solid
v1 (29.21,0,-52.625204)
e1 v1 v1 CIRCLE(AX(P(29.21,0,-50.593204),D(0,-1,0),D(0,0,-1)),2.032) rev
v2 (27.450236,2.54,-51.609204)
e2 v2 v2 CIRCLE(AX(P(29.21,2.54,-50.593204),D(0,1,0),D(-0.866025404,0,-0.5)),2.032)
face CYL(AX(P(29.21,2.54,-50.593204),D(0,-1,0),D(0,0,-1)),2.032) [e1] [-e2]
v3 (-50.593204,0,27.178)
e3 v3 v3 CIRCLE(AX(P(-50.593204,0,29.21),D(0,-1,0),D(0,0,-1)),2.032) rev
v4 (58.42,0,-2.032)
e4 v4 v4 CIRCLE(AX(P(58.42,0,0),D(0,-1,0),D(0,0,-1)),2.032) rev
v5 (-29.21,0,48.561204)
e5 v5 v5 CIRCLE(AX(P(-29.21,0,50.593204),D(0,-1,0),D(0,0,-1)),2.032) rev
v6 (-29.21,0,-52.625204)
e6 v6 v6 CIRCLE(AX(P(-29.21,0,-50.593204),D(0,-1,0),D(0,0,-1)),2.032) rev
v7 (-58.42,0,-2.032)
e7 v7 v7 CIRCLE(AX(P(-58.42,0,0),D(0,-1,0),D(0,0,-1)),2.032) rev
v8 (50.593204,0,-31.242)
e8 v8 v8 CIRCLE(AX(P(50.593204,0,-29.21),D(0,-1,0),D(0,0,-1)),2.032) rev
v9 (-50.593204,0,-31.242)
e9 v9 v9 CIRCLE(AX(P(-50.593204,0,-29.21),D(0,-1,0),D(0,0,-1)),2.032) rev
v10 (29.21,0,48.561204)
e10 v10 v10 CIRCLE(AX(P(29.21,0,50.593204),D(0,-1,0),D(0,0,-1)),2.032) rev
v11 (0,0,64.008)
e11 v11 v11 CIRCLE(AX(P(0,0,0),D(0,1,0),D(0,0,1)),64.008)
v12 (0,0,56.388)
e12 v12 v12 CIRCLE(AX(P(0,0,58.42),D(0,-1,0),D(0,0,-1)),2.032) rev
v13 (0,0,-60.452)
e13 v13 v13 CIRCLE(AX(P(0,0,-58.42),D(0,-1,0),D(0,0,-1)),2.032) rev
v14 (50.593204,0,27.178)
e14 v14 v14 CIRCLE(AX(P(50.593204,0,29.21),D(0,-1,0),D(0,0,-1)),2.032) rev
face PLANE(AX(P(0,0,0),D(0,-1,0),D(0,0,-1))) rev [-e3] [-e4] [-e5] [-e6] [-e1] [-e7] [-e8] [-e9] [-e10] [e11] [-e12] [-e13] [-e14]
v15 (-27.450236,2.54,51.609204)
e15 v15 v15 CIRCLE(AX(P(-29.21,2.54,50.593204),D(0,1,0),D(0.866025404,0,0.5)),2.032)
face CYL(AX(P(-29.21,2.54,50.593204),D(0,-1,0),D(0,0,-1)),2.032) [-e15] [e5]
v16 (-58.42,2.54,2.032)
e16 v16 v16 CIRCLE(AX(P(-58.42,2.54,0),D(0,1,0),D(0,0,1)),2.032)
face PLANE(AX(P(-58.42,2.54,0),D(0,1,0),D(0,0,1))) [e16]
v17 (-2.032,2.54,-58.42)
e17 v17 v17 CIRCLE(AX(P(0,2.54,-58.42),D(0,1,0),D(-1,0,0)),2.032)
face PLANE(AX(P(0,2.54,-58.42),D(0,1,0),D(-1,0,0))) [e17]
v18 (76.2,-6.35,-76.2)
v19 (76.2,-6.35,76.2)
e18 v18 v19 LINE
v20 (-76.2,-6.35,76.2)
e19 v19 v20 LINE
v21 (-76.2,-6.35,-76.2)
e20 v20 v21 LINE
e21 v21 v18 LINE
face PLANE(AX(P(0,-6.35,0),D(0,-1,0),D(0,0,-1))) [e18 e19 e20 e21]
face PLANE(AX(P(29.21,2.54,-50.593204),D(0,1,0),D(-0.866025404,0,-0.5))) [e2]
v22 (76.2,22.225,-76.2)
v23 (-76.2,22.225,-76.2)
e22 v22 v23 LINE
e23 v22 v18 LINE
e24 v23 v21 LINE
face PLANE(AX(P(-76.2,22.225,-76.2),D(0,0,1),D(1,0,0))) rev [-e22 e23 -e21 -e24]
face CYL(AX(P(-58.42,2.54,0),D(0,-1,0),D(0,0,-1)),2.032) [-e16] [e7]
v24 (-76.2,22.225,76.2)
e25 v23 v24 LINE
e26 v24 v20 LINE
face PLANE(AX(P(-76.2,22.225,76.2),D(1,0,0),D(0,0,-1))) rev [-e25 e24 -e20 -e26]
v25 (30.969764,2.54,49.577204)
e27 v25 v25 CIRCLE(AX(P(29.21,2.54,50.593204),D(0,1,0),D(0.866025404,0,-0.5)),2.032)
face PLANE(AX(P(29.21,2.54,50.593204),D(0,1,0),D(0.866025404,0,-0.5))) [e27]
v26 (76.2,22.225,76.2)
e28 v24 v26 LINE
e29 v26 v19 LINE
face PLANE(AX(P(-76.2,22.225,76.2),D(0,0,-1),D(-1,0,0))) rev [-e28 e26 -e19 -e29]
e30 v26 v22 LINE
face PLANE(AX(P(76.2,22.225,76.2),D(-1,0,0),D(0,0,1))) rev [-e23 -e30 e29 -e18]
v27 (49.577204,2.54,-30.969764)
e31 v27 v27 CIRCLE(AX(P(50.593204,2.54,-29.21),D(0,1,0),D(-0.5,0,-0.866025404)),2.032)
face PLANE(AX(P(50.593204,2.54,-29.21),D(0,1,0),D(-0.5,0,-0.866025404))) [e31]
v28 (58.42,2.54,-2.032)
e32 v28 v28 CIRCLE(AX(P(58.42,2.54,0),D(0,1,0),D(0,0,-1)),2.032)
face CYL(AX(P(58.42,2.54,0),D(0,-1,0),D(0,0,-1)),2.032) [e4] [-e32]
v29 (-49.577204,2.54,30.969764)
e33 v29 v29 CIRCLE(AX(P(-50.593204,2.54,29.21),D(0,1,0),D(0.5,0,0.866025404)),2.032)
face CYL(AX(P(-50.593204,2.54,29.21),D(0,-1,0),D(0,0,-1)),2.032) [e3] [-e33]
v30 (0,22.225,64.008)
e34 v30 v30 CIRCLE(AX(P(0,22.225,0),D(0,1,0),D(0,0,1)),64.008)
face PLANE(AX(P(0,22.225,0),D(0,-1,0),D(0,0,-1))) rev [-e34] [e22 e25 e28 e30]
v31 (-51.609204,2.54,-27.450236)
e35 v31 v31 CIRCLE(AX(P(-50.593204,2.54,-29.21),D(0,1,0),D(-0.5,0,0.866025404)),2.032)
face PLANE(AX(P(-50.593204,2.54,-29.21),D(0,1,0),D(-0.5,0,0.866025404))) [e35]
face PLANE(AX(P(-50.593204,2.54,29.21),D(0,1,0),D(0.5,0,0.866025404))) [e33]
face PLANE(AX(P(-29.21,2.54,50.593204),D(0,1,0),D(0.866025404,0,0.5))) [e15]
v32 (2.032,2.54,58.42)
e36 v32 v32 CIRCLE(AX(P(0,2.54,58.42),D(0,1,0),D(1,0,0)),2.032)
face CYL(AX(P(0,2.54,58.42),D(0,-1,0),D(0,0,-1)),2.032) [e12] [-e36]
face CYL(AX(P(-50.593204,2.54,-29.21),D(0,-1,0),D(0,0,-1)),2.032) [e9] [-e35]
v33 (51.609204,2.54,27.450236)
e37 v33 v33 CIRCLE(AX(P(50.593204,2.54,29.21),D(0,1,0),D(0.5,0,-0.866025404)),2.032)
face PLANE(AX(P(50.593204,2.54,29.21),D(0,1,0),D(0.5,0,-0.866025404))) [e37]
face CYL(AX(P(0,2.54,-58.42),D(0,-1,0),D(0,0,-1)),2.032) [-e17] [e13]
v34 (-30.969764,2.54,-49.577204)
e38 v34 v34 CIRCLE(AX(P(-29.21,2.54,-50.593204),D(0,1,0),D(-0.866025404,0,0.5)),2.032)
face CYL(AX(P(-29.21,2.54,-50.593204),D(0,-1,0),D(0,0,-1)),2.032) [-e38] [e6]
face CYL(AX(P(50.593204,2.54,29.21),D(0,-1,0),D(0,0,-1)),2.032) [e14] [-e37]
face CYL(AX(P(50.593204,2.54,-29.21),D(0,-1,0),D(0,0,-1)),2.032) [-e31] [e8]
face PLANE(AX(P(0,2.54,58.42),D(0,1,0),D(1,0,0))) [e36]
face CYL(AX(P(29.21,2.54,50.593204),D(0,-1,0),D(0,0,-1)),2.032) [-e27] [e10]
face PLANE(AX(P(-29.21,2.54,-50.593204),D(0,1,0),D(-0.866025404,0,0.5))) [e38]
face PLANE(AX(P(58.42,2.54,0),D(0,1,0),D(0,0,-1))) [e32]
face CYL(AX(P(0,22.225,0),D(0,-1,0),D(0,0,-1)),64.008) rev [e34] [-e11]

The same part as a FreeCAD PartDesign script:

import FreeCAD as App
import Part
import Sketcher
Q = App.Units.Quantity


def add_polygon(sketch, points):
    """Adds a closed chain of lines whose ends are joined by coincident constraints."""
    first, n = sketch.GeometryCount, len(points)
    for a, b in zip(points, points[1:] + points[:1]):
        sketch.addGeometry(Part.LineSegment(App.Vector(*a, 0), App.Vector(*b, 0)), False)
    for i in range(n):
        sketch.addConstraint(Sketcher.Constraint("Coincident", first + i, 2, first + (i + 1) % n, 1))

doc = App.newDocument("Part")
body = doc.addObject("PartDesign::Body", "Body")

sketch1 = body.newObject("Sketcher::SketchObject", "Sketch")
sketch1.AttachmentSupport = (doc.getObject("XZ_Plane"), [""])
sketch1.MapMode = "FlatFace"
add_polygon(sketch1, [(-76, -76), (-76, 76), (76, 76), (76, -76)])
sketch1.addGeometry(Part.Circle(App.Vector(0, 0, 0), App.Vector(0, 0, 1), 64), False)
sketch1.addConstraint([
    Sketcher.Constraint("Vertical", 0),
    Sketcher.Constraint("Horizontal", 1),
    Sketcher.Constraint("Vertical", 2),
    Sketcher.Constraint("Horizontal", 3),
    Sketcher.Constraint("Coincident", 4, 3, -1, 1),
    Sketcher.Constraint("Symmetric", 0, 2, 2, 2, -1, 1),
    Sketcher.Constraint("Equal", 3, 0),
    Sketcher.Constraint("Diameter", 4, Q("5.04 in")),
    Sketcher.Constraint("DistanceX", 1, 1, 1, 2, Q("6 in")),
])
pad1 = body.newObject("PartDesign::Pad", "Pad")
pad1.Profile = sketch1
pad1.Length = Q("0.875 in")
pad1.Reversed = True

sketch2 = body.newObject("Sketcher::SketchObject", "Sketch001")
sketch2.AttachmentSupport = (doc.getObject("XZ_Plane"), [""])
sketch2.MapMode = "FlatFace"
add_polygon(sketch2, [(76, -76), (76, 76), (-76, 76), (-76, -76)])
sketch2.addConstraint([
    Sketcher.Constraint("Vertical", 0),
    Sketcher.Constraint("Horizontal", 1),
    Sketcher.Constraint("Vertical", 2),
    Sketcher.Constraint("Horizontal", 3),
    Sketcher.Constraint("Symmetric", 0, 2, 2, 2, -1, 1),
    Sketcher.Constraint("Equal", 3, 0),
    Sketcher.Constraint("DistanceX", 1, 2, 1, 1, Q("6 in")),
])
pad2 = body.newObject("PartDesign::Pad", "Pad001")
pad2.Profile = sketch2
pad2.Length = Q("0.25 in")

sketch3 = body.newObject("Sketcher::SketchObject", "Sketch002")
sketch3.AttachmentSupport = (doc.getObject("XZ_Plane"), [""])
sketch3.MapMode = "FlatFace"
sketch3.addGeometry(Part.Circle(App.Vector(-58.4, 0, 0), App.Vector(0, 0, 1), 2), False)
sketch3.addConstraint([
    Sketcher.Constraint("PointOnObject", 0, 3, -1),
    Sketcher.Constraint("Diameter", 0, Q("0.16 in")),
    Sketcher.Constraint("DistanceX", 0, 3, -1, 1, Q("2.3 in")),
])
pad3 = body.newObject("PartDesign::Pad", "Pad002")
pad3.Profile = sketch3
pad3.Length = Q("0.1 in")
pad3.Reversed = True
doc.recompute()

polarpattern = body.newObject("PartDesign::PolarPattern", "PolarPattern")
polarpattern.Originals = [pad3]
polarpattern.Axis = (doc.getObject("Y_Axis"), [""])
polarpattern.Angle = 360
polarpattern.Occurrences = 12
body.Tip = polarpattern

doc.recompute()
